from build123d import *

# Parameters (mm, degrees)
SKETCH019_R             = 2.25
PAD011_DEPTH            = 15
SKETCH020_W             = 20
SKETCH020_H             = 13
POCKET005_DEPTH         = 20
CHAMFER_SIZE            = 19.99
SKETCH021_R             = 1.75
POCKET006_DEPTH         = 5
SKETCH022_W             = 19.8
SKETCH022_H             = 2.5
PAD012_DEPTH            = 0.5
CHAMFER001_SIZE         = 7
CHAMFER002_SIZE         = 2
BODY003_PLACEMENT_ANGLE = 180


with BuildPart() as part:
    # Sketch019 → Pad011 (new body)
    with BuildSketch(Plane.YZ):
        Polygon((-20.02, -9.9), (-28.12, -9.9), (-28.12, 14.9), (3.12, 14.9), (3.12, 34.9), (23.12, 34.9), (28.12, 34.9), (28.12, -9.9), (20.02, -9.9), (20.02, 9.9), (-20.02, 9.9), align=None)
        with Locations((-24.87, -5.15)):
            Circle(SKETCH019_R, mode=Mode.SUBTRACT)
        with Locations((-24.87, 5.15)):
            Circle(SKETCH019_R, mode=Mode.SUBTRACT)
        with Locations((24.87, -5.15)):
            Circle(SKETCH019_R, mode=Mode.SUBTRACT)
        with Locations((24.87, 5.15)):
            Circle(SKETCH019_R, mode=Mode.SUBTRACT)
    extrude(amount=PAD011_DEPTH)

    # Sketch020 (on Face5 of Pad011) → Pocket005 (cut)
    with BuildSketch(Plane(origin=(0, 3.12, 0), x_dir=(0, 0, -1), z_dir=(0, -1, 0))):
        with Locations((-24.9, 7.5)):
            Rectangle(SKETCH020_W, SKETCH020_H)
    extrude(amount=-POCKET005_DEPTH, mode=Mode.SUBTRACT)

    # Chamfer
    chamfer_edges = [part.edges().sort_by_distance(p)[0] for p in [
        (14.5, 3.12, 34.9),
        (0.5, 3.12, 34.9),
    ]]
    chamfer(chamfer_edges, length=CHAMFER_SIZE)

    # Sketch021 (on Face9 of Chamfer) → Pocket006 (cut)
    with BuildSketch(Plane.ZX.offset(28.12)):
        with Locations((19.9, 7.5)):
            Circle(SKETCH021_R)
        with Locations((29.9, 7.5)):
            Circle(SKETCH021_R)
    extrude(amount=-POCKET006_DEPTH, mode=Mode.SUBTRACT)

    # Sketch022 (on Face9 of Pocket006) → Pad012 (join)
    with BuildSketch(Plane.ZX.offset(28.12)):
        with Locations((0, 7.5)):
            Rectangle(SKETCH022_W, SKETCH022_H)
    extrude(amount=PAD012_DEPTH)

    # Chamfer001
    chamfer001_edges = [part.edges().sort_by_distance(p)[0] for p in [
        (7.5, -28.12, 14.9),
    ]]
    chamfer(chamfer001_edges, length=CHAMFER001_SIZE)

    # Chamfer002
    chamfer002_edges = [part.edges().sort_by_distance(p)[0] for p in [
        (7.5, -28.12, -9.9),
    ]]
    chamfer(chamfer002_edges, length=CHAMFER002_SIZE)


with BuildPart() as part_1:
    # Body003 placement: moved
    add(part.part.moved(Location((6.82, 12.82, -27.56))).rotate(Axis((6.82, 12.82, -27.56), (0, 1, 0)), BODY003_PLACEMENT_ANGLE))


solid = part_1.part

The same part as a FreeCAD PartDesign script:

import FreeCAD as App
import Part
import Sketcher


def edges_at(feature, points):
    """Names of the edges that pass closest to the given points."""
    edges = feature.Shape.Edges
    near = lambda p: min(range(len(edges)), key=lambda i: edges[i].distToShape(Part.Vertex(*p))[0])
    return sorted({f"Edge{near(p) + 1}" for p in points})


def add_polygon(sketch, points):
    """Adds a closed chain of lines whose ends are joined by coincident constraints."""
    first, n = sketch.GeometryCount, len(points)
    for a, b in zip(points, points[1:] + points[:1]):
        sketch.addGeometry(Part.LineSegment(App.Vector(*a, 0), App.Vector(*b, 0)), False)
    for i in range(n):
        sketch.addConstraint(Sketcher.Constraint("Coincident", first + i, 2, first + (i + 1) % n, 1))

doc = App.newDocument("Part")
body = doc.addObject("PartDesign::Body", "Body")

# Sketch on YZ plane
sketch1 = body.newObject("Sketcher::SketchObject", "Sketch")
sketch1.AttachmentSupport = (doc.getObject("YZ_Plane"), [""])
sketch1.MapMode = "FlatFace"
add_polygon(sketch1, [(-28.1, -9.9), (-20, -9.9), (-20, 9.9), (20, 9.9), (20, -9.9), (28.1, -9.9), (28.1, 34.9), (3.1, 34.9), (3.1, 14.9), (-28.1, 14.9)])  # lines 0-9
sketch1.addGeometry(Part.Circle(App.Vector(24.9, -5.2, 0), App.Vector(0, 0, 1), 2.2), False)  # 10
sketch1.addGeometry(Part.Circle(App.Vector(-24.9, -5.2, 0), App.Vector(0, 0, 1), 2.2), False)  # 11
sketch1.addGeometry(Part.Circle(App.Vector(24.9, 5.2, 0), App.Vector(0, 0, 1), 2.2), False)  # 12
sketch1.addGeometry(Part.Circle(App.Vector(-24.9, 5.2, 0), App.Vector(0, 0, 1), 2.2), False)  # 13
sketch1.addConstraint(Sketcher.Constraint("Horizontal", 0))
sketch1.addConstraint(Sketcher.Constraint("Vertical", 1))
sketch1.addConstraint(Sketcher.Constraint("Horizontal", 2))
sketch1.addConstraint(Sketcher.Constraint("Vertical", 3))
sketch1.addConstraint(Sketcher.Constraint("Horizontal", 4))
sketch1.addConstraint(Sketcher.Constraint("Vertical", 5))
sketch1.addConstraint(Sketcher.Constraint("Horizontal", 6))
sketch1.addConstraint(Sketcher.Constraint("Vertical", 7))
sketch1.addConstraint(Sketcher.Constraint("Horizontal", 8))
sketch1.addConstraint(Sketcher.Constraint("Vertical", 9))
sketch1.addConstraint(Sketcher.Constraint("Equal", 10, 11))
sketch1.addConstraint(Sketcher.Constraint("Equal", 11, 12))
sketch1.addConstraint(Sketcher.Constraint("Equal", 12, 13))
sketch1.addConstraint(Sketcher.Constraint("Symmetric", 11, 3, 12, 3, -1, 1))
sketch1.addConstraint(Sketcher.Constraint("Symmetric", 10, 3, 13, 3, -1, 1))
sketch1.addConstraint(Sketcher.Constraint("Symmetric", 0, 2, 2, 2, -1, 1))
sketch1.addConstraint(Sketcher.Constraint("Symmetric", 10, 3, 11, 3, -2))
sketch1.addConstraint(Sketcher.Constraint("Symmetric", 4, 2, 9, 2, -2))
sketch1.addConstraint(Sketcher.Constraint("Diameter", 10, 4.5))
sketch1.addConstraint(Sketcher.Constraint("DistanceX", 6, 2, 6, 1, 25.0))
sketch1.addConstraint(Sketcher.Constraint("DistanceY", 7, 2, 7, 1, 20.0))
sketch1.addConstraint(Sketcher.Constraint("DistanceX", 0, 1, 0, 2, 8.1))
sketch1.addConstraint(Sketcher.Constraint("DistanceY", 1, 1, 1, 2, 19.8))
sketch1.addConstraint(Sketcher.Constraint("DistanceY", 5, 1, 5, 2, 44.8))
sketch1.addConstraint(Sketcher.Constraint("DistanceX", 2, 1, 2, 2, 40.04))
sketch1.addConstraint(Sketcher.Constraint("DistanceY", 10, 3, 12, 3, 10.3))
sketch1.addConstraint(Sketcher.Constraint("DistanceX", -1, 1, 10, 3, 24.87))
pad1 = body.newObject("PartDesign::Pad", "Pad")
pad1.Profile = sketch1
pad1.Length = 15

# Sketch on XZ plane
sketch2 = body.newObject("Sketcher::SketchObject", "Sketch001")
sketch2.AttachmentSupport = (doc.getObject("XZ_Plane"), [""])
sketch2.MapMode = "FlatFace"
sketch2.AttachmentOffset = App.Placement(App.Vector(0, 0, -3.12), App.Rotation())
add_polygon(sketch2, [(14, 35), (1, 35), (1, 15), (14, 15)])  # lines 0-3
sketch2.addConstraint(Sketcher.Constraint("Horizontal", 0))
sketch2.addConstraint(Sketcher.Constraint("Vertical", 1))
sketch2.addConstraint(Sketcher.Constraint("Horizontal", 2))
sketch2.addConstraint(Sketcher.Constraint("Vertical", 3))
sketch2.addConstraint(Sketcher.Constraint("DistanceX", 0, 2, 0, 1, 13.0))
sketch2.addConstraint(Sketcher.Constraint("DistanceY", 1, 2, 1, 1, 20.0))
sketch2.addConstraint(Sketcher.Constraint("DistanceX", -1, 1, 0, 2, 1.0))
sketch2.addConstraint(Sketcher.Constraint("DistanceY", -1, 1, 0, 2, 34.9))
pocket1 = body.newObject("PartDesign::Pocket", "Pocket")
pocket1.Profile = sketch2
pocket1.Length = 20
doc.recompute()

chamfer = body.newObject("PartDesign::Chamfer", "Chamfer")
chamfer.Base = (pocket1, edges_at(pocket1, [(14.5, 3.12, 34.9), (0.5, 3.12, 34.9)]))
chamfer.Size = 19.99

# Sketch on XZ plane
sketch3 = body.newObject("Sketcher::SketchObject", "Sketch002")
sketch3.AttachmentSupport = (doc.getObject("XZ_Plane"), [""])
sketch3.MapMode = "FlatFace"
sketch3.AttachmentOffset = App.Placement(App.Vector(0, 0, -28.12), App.Rotation())
sketch3.addGeometry(Part.Circle(App.Vector(7.5, 19.9, 0), App.Vector(0, 0, 1), 1.8), False)
sketch3.addGeometry(Part.Circle(App.Vector(7.5, 29.9, 0), App.Vector(0, 0, 1), 1.8), False)
sketch3.addConstraint(Sketcher.Constraint("Equal", 0, 1))
sketch3.addConstraint(Sketcher.Constraint("Vertical", 0, 3, 1, 3))
sketch3.addConstraint(Sketcher.Constraint("Diameter", 0, 3.5))
sketch3.addConstraint(Sketcher.Constraint("DistanceY", 0, 3, 1, 3, 10.0))
sketch3.addConstraint(Sketcher.Constraint("DistanceX", -1, 1, 0, 3, 7.5))
sketch3.addConstraint(Sketcher.Constraint("DistanceY", -1, 1, 0, 3, 19.9))
pocket2 = body.newObject("PartDesign::Pocket", "Pocket001")
pocket2.Profile = sketch3
pocket2.Length = 5
pocket2.Reversed = True

# Sketch on XZ plane
sketch4 = body.newObject("Sketcher::SketchObject", "Sketch003")
sketch4.AttachmentSupport = (doc.getObject("XZ_Plane"), [""])
sketch4.MapMode = "FlatFace"
sketch4.AttachmentOffset = App.Placement(App.Vector(0, 0, -28.12), App.Rotation())
add_polygon(sketch4, [(8.8, -9.9), (6.2, -9.9), (6.2, 9.9), (8.8, 9.9)])  # lines 0-3
sketch4.addConstraint(Sketcher.Constraint("Horizontal", 0))
sketch4.addConstraint(Sketcher.Constraint("Vertical", 1))
sketch4.addConstraint(Sketcher.Constraint("Horizontal", 2))
sketch4.addConstraint(Sketcher.Constraint("Vertical", 3))
sketch4.addConstraint(Sketcher.Constraint("DistanceX", 0, 2, 0, 1, 2.5))
sketch4.addConstraint(Sketcher.Constraint("DistanceY", 1, 1, 1, 2, 19.8))
sketch4.addConstraint(Sketcher.Constraint("DistanceY", 0, 2, -1, 1, 9.9))
sketch4.addConstraint(Sketcher.Constraint("DistanceX", -1, 1, 0, 2, 6.25))
pad2 = body.newObject("PartDesign::Pad", "Pad001")
pad2.Profile = sketch4
pad2.Length = 0.5
pad2.Reversed = True
doc.recompute()

chamfer2 = body.newObject("PartDesign::Chamfer", "Chamfer001")
chamfer2.Base = (pad2, edges_at(pad2, [(7.5, -28.12, 14.9)]))
chamfer2.Size = 7
doc.recompute()

chamfer3 = body.newObject("PartDesign::Chamfer", "Chamfer002")
chamfer3.Base = (chamfer2, edges_at(chamfer2, [(7.5, -28.12, -9.9)]))
chamfer3.Size = 2
body2 = doc.addObject("PartDesign::Body", "Body001")
doc.recompute()

body.Placement = App.Placement(App.Vector(6.82, 12.82, -27.56), App.Rotation(App.Vector(0, 1, 0), 180))
boolean = body2.newObject("PartDesign::Boolean", "Boolean")
boolean.Type = "Fuse"
boolean.addObjects([body])

doc.recompute()
